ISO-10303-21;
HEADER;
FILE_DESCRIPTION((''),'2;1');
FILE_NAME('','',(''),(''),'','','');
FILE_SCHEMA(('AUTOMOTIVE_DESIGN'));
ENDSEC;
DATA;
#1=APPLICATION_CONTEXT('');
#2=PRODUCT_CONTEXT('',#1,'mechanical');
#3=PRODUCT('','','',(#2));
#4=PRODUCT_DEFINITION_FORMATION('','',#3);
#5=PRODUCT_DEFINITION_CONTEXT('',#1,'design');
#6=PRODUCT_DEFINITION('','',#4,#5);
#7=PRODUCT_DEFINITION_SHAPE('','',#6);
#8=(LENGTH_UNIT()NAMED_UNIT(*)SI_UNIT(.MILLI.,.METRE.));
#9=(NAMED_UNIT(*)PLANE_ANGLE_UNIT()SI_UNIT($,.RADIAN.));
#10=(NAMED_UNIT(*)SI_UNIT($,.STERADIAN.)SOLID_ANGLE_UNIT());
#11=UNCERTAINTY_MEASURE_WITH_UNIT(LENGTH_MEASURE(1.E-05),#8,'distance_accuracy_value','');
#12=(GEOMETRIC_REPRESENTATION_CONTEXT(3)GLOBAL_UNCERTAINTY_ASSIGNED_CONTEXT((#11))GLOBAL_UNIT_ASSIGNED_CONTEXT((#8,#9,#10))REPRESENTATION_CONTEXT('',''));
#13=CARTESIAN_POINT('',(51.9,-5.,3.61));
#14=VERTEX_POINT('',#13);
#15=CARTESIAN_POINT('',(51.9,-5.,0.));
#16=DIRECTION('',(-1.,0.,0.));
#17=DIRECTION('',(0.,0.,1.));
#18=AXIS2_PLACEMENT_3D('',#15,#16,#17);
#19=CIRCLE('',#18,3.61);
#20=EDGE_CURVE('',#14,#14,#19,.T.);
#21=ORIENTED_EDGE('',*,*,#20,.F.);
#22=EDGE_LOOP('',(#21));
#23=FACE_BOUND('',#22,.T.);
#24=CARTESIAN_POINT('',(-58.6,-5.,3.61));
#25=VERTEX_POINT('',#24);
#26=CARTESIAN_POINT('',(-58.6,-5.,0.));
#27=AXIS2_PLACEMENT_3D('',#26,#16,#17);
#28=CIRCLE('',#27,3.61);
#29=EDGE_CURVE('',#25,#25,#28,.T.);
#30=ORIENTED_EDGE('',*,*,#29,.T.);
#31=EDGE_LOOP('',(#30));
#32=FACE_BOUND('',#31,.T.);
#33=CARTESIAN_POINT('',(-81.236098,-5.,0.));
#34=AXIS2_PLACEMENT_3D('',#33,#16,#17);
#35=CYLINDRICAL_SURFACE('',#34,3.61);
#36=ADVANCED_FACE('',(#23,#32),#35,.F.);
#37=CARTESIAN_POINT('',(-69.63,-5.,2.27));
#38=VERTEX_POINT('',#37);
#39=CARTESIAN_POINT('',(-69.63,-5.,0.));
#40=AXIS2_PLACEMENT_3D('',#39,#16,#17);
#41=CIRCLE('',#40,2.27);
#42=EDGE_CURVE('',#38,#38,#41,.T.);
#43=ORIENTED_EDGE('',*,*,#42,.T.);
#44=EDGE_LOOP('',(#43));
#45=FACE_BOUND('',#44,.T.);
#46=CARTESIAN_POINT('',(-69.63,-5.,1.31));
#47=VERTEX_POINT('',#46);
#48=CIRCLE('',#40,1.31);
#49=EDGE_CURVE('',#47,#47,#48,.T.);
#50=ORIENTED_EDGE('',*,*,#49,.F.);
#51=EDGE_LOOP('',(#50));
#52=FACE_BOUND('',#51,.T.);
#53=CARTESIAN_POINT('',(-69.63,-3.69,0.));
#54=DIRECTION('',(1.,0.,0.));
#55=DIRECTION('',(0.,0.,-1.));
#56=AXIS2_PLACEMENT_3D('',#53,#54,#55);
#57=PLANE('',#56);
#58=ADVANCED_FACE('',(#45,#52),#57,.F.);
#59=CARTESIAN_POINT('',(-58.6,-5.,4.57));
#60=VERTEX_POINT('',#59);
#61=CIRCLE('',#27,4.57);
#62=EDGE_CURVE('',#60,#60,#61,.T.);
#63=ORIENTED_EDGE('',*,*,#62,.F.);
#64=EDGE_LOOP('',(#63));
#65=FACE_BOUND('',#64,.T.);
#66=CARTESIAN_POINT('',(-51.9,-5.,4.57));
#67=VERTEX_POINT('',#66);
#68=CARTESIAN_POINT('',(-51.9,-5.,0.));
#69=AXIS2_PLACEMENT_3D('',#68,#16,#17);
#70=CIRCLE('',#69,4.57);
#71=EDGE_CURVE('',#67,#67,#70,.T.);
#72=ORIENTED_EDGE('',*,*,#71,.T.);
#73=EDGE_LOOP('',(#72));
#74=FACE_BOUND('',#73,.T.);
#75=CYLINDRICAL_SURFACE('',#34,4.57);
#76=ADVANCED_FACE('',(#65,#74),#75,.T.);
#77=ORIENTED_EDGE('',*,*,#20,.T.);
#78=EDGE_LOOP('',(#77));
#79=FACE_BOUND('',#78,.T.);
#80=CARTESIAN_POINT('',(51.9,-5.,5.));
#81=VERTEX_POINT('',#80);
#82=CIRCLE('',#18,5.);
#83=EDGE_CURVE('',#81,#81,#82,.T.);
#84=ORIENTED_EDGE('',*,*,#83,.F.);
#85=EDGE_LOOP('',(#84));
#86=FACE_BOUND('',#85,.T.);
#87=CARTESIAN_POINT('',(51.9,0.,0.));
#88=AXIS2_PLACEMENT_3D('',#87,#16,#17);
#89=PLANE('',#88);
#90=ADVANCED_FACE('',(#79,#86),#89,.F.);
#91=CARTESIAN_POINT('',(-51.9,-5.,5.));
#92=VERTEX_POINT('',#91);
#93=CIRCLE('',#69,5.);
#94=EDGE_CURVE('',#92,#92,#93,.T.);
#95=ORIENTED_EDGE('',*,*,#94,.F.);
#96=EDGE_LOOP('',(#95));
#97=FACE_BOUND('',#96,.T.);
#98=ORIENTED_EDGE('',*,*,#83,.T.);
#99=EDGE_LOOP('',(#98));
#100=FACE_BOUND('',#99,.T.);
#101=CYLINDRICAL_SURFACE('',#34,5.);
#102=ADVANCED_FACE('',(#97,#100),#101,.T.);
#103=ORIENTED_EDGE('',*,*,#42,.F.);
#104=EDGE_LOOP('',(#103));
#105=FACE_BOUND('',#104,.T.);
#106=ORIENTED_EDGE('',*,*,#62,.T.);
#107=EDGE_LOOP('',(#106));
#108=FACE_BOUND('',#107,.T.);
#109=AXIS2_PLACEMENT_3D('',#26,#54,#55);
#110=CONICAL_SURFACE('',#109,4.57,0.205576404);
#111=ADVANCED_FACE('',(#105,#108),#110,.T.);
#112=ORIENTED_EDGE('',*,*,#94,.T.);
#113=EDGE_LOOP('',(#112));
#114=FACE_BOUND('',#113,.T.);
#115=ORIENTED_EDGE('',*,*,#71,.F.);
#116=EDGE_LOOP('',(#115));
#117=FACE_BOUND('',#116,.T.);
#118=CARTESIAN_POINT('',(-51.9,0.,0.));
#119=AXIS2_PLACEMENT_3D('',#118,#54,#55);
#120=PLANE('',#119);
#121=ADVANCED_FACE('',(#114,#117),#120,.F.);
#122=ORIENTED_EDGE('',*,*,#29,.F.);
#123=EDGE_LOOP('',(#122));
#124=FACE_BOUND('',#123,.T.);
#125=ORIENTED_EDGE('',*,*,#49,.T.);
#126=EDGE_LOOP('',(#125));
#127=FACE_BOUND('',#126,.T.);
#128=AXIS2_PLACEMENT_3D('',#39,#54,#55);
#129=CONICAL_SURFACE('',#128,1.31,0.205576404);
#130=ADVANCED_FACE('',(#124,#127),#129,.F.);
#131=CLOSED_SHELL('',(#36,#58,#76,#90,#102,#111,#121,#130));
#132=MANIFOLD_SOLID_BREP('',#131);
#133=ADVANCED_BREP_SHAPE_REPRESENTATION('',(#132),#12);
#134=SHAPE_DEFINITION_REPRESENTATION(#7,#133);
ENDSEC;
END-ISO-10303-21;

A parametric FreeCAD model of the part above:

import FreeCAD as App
import Part
import Sketcher
from FreeCAD import Vector
Q = App.Units.Quantity


def add_polygon(sketch, points):
    """Adds a closed chain of lines whose ends are joined by coincident constraints."""
    first, n = sketch.GeometryCount, len(points)
    for a, b in zip(points, points[1:] + points[:1]):
        sketch.addGeometry(Part.LineSegment(App.Vector(*a, 0), App.Vector(*b, 0)), False)
    for i in range(n):
        sketch.addConstraint(Sketcher.Constraint("Coincident", first + i, 2, first + (i + 1) % n, 1))

doc = App.newDocument("Part")
body = doc.addObject("PartDesign::Body", "Body")

# Sketch on XY plane
sketch1 = body.newObject("Sketcher::SketchObject", "Sketch")
sketch1.AttachmentSupport = (doc.getObject("XY_Plane"), [""])
sketch1.MapMode = "FlatFace"
add_polygon(sketch1, [(51.9, 0), (-51.9, 0), (-51.9, -0.43), (-58.6, -0.43), (-69.63, -2.73), (-69.63, -3.69), (-58.6, -1.39), (51.9, -1.39)])  # lines 0-7
sketch1.addGeometry(Part.LineSegment(Vector(-69.63, -5, 0), Vector(51.9, -5, 0)), True)  # axis
sketch1.addConstraint([
    Sketcher.Constraint("Horizontal", 0),
    Sketcher.Constraint("Vertical", 1),
    Sketcher.Constraint("Horizontal", 2),
    Sketcher.Constraint("Vertical", 4),
    Sketcher.Constraint("Horizontal", 6),
    Sketcher.Constraint("Vertical", 7),
    Sketcher.Constraint("Horizontal", 8),
    Sketcher.Constraint("Symmetric", 0, 2, 7, 2, -1, 1),
    Sketcher.Constraint("Parallel", 3, 5),
    Sketcher.Constraint("Vertical", 2, 2, 5, 2),
    Sketcher.Constraint("Vertical", 4, 2, 8, 1),
    Sketcher.Constraint("Vertical", 7, 2, 8, 2),
    Sketcher.Constraint("DistanceX", 0, 2, 0, 1, Q("103.8 mm")),
    Sketcher.Constraint("DistanceX", 2, 2, 2, 1, Q("6.7 mm")),
    Sketcher.Constraint("DistanceY", 8, 1, -1, 1, Q("5 mm")),
    Sketcher.Constraint("DistanceX", 8, 1, 8, 2, Q("121.53 mm")),
    Sketcher.Constraint("DistanceY", 1, 2, 1, 1, Q("0.43 mm")),
    Sketcher.Constraint("DistanceY", 4, 2, 4, 1, Q("0.96 mm")),
    Sketcher.Constraint("DistanceY", 3, 2, 2, 2, Q("2.3 mm")),
])
revolution = body.newObject("PartDesign::Revolution", "Revolution")
revolution.Profile = sketch1
revolution.ReferenceAxis = (sketch1, ["Axis0"])
revolution.Angle = 360

doc.recompute()
